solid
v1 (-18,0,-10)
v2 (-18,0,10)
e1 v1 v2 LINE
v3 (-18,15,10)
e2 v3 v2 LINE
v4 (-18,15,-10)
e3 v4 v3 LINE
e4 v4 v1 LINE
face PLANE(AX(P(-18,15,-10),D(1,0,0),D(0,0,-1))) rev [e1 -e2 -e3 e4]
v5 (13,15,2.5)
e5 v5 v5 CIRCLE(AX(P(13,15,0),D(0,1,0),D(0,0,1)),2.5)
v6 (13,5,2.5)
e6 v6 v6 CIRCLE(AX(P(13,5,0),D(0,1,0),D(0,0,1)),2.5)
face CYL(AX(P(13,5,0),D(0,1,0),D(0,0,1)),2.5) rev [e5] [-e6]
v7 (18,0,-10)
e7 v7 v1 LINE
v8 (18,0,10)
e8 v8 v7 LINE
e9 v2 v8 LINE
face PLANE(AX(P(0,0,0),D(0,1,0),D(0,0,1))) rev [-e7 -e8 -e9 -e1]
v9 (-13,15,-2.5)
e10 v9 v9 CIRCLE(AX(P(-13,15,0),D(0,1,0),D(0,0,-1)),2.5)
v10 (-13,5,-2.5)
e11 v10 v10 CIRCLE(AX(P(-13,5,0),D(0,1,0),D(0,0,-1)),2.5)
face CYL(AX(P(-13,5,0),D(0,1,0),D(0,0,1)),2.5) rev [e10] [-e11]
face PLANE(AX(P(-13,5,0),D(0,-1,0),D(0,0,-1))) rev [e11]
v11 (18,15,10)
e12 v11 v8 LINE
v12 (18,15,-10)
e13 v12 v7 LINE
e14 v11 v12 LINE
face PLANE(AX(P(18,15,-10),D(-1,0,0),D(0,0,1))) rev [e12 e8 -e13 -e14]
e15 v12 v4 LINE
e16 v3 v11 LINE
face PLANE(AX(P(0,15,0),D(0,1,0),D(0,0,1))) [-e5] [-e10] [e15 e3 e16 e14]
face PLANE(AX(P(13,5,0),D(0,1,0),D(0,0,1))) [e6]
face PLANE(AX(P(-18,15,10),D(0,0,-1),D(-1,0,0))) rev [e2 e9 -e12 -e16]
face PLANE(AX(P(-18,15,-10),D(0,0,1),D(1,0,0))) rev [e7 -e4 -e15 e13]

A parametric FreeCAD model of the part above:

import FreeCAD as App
import Part
import Sketcher
from FreeCAD import Vector
Q = App.Units.Quantity

doc = App.newDocument("Part")
body = doc.addObject("PartDesign::Body", "Body")

# Sketch on XZ plane
sketch1 = body.newObject("Sketcher::SketchObject", "Sketch")
sketch1.AttachmentSupport = (doc.getObject("XZ_Plane"), [""])
sketch1.MapMode = "FlatFace"
sketch1.addGeometry(Part.LineSegment(Vector(-18, -10, 0), Vector(-18, 10, 0)), False)
sketch1.addGeometry(Part.LineSegment(Vector(-18, 10, 0), Vector(18, 10, 0)), False)
sketch1.addGeometry(Part.LineSegment(Vector(18, 10, 0), Vector(18, -10, 0)), False)
sketch1.addGeometry(Part.LineSegment(Vector(18, -10, 0), Vector(-18, -10, 0)), False)
sketch1.addConstraint(Sketcher.Constraint("Coincident", 0, 2, 1, 1))
sketch1.addConstraint(Sketcher.Constraint("Coincident", 1, 2, 2, 1))
sketch1.addConstraint(Sketcher.Constraint("Coincident", 2, 2, 3, 1))
sketch1.addConstraint(Sketcher.Constraint("Coincident", 3, 2, 0, 1))
sketch1.addConstraint(Sketcher.Constraint("Vertical", 0))
sketch1.addConstraint(Sketcher.Constraint("Horizontal", 1))
sketch1.addConstraint(Sketcher.Constraint("Vertical", 2))
sketch1.addConstraint(Sketcher.Constraint("Horizontal", 3))
sketch1.addConstraint(Sketcher.Constraint("Symmetric", 0, 2, 2, 2, -1, 1))
sketch1.addConstraint(Sketcher.Constraint("DistanceX", 1, 1, 1, 2, Q("36 mm")))
sketch1.addConstraint(Sketcher.Constraint("DistanceY", 0, 1, 0, 2, Q("20 mm")))
pad1 = body.newObject("PartDesign::Pad", "Pad")
pad1.Profile = sketch1
pad1.Length = 15
pad1.Reversed = True

# Sketch on XZ plane
sketch2 = body.newObject("Sketcher::SketchObject", "Sketch001")
sketch2.AttachmentSupport = (doc.getObject("XZ_Plane"), [""])
sketch2.MapMode = "FlatFace"
sketch2.AttachmentOffset = App.Placement(Vector(0, 0, -15), App.Rotation())
sketch2.addGeometry(Part.Circle(Vector(13, 0, 0), Vector(0, 0, 1), 2.5), False)
sketch2.addGeometry(Part.Circle(Vector(-13, 0, 0), Vector(0, 0, 1), 2.5), False)
sketch2.addConstraint(Sketcher.Constraint("Equal", 0, 1))
sketch2.addConstraint(Sketcher.Constraint("Symmetric", 0, 3, 1, 3, -1, 1))
sketch2.addConstraint(Sketcher.Constraint("PointOnObject", 0, 3, -1))
sketch2.addConstraint(Sketcher.Constraint("Diameter", 0, Q("5 mm")))
sketch2.addConstraint(Sketcher.Constraint("DistanceX", -1, 1, 0, 3, Q("13 mm")))
pocket1 = body.newObject("PartDesign::Pocket", "Pocket")
pocket1.Profile = sketch2
pocket1.Length = 10
pocket1.Reversed = True

doc.recompute()
